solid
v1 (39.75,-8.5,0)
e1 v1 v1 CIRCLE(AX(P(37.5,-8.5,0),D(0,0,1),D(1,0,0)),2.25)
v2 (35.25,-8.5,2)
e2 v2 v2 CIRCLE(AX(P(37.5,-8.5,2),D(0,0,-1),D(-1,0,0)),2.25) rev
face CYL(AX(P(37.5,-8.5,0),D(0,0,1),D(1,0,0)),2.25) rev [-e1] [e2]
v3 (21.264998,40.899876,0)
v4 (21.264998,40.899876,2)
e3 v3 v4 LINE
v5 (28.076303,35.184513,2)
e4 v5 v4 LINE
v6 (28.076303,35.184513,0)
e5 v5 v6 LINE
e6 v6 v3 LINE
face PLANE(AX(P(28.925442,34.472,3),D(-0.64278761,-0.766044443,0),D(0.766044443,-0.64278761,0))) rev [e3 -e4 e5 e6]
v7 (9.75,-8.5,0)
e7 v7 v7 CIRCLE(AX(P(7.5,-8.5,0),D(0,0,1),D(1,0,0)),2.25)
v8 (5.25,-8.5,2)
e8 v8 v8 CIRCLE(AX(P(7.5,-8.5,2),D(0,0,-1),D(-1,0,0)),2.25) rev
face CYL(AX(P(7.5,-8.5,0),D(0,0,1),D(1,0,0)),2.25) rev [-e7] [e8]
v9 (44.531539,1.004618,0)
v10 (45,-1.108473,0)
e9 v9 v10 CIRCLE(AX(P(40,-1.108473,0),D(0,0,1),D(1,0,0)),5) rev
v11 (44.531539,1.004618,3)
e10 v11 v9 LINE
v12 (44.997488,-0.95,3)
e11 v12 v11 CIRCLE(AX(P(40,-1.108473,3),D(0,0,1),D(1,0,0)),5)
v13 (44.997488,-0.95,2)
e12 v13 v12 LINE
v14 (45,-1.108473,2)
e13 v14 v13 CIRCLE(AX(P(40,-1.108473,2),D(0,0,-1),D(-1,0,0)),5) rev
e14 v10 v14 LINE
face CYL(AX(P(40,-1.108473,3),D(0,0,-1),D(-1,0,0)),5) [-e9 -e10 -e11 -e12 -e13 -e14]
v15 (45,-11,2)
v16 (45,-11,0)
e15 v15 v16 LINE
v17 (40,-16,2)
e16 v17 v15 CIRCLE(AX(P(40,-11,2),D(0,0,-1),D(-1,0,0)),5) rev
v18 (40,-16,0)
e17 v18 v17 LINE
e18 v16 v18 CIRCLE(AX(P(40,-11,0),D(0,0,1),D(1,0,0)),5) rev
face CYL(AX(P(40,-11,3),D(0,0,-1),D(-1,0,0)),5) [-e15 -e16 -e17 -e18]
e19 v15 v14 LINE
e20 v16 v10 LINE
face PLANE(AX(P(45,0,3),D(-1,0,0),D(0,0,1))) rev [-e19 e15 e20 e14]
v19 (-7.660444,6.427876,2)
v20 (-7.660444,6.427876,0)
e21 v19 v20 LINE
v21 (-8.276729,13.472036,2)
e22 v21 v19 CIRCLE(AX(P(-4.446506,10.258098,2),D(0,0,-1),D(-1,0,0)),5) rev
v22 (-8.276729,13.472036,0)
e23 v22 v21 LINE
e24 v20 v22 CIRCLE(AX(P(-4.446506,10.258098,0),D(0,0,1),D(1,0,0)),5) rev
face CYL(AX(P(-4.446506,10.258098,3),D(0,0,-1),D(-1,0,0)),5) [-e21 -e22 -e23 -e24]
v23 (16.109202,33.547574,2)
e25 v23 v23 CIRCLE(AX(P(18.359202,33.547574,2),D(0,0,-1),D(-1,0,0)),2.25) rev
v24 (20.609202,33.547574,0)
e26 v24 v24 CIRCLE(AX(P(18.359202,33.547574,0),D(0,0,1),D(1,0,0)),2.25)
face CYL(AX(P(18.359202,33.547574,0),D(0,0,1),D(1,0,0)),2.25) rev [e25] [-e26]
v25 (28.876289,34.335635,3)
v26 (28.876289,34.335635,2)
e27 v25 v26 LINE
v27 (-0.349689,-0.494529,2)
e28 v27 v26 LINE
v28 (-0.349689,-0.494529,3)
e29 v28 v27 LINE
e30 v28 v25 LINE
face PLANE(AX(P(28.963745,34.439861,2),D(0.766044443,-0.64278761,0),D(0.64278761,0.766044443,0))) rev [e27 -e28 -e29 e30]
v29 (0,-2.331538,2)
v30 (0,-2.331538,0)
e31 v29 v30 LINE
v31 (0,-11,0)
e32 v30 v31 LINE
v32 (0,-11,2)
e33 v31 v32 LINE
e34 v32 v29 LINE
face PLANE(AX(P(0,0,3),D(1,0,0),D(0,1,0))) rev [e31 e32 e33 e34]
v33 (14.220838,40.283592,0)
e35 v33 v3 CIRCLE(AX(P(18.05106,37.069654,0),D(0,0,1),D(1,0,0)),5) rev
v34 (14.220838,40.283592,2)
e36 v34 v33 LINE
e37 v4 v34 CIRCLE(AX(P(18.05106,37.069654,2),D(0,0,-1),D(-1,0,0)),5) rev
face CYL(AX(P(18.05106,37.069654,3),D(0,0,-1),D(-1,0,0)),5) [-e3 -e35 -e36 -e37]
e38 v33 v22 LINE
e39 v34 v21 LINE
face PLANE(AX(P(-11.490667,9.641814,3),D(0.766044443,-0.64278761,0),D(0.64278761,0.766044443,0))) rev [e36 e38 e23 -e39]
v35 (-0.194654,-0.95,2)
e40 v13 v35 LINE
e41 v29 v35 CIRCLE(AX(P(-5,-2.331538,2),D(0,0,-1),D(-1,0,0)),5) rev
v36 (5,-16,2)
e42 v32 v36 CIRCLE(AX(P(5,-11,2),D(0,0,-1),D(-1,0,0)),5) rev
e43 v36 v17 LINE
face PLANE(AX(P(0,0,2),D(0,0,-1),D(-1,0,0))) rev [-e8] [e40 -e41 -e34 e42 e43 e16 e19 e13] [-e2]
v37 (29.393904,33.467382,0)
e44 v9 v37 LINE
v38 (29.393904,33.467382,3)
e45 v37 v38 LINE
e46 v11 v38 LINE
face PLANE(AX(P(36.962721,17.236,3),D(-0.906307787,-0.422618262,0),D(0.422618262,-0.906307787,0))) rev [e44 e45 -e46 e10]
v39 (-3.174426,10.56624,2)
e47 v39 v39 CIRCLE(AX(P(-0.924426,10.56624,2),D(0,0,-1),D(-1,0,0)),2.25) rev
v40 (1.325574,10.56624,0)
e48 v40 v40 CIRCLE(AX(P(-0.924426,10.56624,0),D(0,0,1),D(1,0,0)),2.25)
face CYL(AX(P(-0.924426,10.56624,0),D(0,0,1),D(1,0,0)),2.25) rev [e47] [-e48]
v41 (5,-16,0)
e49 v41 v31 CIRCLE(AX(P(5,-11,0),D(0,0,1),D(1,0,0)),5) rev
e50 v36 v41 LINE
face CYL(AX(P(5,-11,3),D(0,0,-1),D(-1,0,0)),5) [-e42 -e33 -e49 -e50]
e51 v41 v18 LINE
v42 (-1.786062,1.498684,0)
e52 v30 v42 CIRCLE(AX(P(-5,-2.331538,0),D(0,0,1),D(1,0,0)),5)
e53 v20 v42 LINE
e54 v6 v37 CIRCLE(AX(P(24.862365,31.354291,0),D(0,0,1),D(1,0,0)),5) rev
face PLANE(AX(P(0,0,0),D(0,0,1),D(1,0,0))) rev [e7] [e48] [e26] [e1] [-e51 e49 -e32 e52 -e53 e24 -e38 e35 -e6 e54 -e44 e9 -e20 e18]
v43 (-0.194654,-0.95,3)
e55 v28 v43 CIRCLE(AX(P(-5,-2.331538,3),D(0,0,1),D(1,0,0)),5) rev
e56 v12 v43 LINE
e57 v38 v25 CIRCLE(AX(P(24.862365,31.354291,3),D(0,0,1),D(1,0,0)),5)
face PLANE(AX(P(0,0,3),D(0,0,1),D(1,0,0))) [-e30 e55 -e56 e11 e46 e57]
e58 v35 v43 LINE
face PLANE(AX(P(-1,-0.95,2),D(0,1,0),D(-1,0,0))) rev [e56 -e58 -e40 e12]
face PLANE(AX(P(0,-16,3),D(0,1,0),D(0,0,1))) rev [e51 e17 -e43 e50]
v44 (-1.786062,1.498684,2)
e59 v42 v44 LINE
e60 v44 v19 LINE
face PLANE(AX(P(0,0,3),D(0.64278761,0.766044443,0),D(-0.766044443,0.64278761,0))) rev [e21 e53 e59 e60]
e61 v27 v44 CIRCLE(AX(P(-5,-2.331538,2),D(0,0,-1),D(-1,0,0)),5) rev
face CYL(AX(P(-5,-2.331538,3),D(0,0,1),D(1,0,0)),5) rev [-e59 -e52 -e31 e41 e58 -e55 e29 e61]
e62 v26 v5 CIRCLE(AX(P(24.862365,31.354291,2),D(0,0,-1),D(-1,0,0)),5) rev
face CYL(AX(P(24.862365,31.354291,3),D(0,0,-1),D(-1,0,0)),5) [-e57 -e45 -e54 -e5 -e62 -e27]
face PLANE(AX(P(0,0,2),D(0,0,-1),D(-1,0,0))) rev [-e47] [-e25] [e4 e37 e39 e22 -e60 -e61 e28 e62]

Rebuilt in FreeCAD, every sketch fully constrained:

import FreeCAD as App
import Part
import Sketcher
Q = App.Units.Quantity


def edges_at(feature, points):
    """Names of the edges that pass closest to the given points."""
    edges = feature.Shape.Edges
    near = lambda p: min(range(len(edges)), key=lambda i: edges[i].distToShape(Part.Vertex(*p))[0])
    return sorted({f"Edge{near(p) + 1}" for p in points})


def add_polygon(sketch, points):
    """Adds a closed chain of lines whose ends are joined by coincident constraints."""
    first, n = sketch.GeometryCount, len(points)
    for a, b in zip(points, points[1:] + points[:1]):
        sketch.addGeometry(Part.LineSegment(App.Vector(*a, 0), App.Vector(*b, 0)), False)
    for i in range(n):
        sketch.addConstraint(Sketcher.Constraint("Coincident", first + i, 2, first + (i + 1) % n, 1))

doc = App.newDocument("Part")
params = doc.addObject("Spreadsheet::Sheet", "Params")
for row, (alias, value) in enumerate([
    ("sketch1_width", "45 mm"),
    ("sketch1_height", "16 mm"),
    ("sketch1_length", "15 mm"),
    ("pad1_length", "3 mm"),
    ("sketch2_diameter", "4.5 mm"),
    ("pocket1_length", "3 mm"),
    ("fillet_radius", "5 mm"),
    ("sketch3_width", "46 mm"),
    ("sketch3_length", "46 mm"),
    ("sketch3_height", "15.05 mm"),
    ("sketch3_length2", "15.05 mm"),
    ("pocket2_length", "1 mm"),
], start=1):
    params.set(f"A{row}", alias)
    params.set(f"B{row}", "=" + value)
    params.setAlias(f"B{row}", alias)

body = doc.addObject("PartDesign::Body", "Body")

sketch1 = body.newObject("Sketcher::SketchObject", "Sketch")
sketch1.AttachmentSupport = (doc.getObject("XY_Plane"), [""])
sketch1.MapMode = "FlatFace"
add_polygon(sketch1, [(17.434776, 44.113814), (-11.490667, 9.641814), (0, 0), (0, -16), (45, -16), (45, 0), (28.925442, 34.472)])
sketch1.addConstraint([
    Sketcher.Constraint("Vertical", 2),
    Sketcher.Constraint("Horizontal", 3),
    Sketcher.Constraint("Vertical", 4),
    Sketcher.Constraint("Coincident", 1, 2, -1, 1),
    Sketcher.Constraint("PointOnObject", 4, 2, -1),
    Sketcher.Constraint("Perpendicular", 0, 1),
    Sketcher.Constraint("Parallel", 1, 6),
    Sketcher.Constraint("Equal", 1, 6),
    Sketcher.Constraint("DistanceX", 3, 1, 3, 2, Q("45 mm")),
    Sketcher.Constraint("DistanceY", 2, 2, 2, 1, Q("16 mm")),
    Sketcher.Constraint("Angle", 0, Q("-130 deg")),
    Sketcher.Constraint("Angle", 5, Q("115 deg")),
    Sketcher.Constraint("Distance", 1, Q("15 mm")),
])
sketch1.setExpression("Constraints[15]", "Params.sketch1_width")
sketch1.setExpression("Constraints[16]", "Params.sketch1_height")
sketch1.setExpression("Constraints[19]", "Params.sketch1_length")
pad1 = body.newObject("PartDesign::Pad", "Pad")
pad1.Profile = sketch1
pad1.setExpression("Length", "Params.pad1_length")

sketch2 = body.newObject("Sketcher::SketchObject", "Sketch001")
sketch2.AttachmentSupport = (doc.getObject("XY_Plane"), [""])
sketch2.MapMode = "FlatFace"
sketch2.AttachmentOffset = App.Placement(App.Vector(0, 0, 3), App.Rotation())
sketch2.addGeometry([
    Part.Circle(App.Vector(7.5, -8.5, 0), App.Vector(0, 0, 1), 2.25),
    Part.Circle(App.Vector(-0.924426, 10.56624, 0), App.Vector(0, 0, 1), 2.25),
    Part.Circle(App.Vector(18.359202, 33.547574, 0), App.Vector(0, 0, 1), 2.25),
    Part.Circle(App.Vector(37.5, -8.5, 0), App.Vector(0, 0, 1), 2.25),
], False)
sketch2.addConstraint([
    Sketcher.Constraint("Equal", 0, 1),
    Sketcher.Constraint("Equal", 1, 2),
    Sketcher.Constraint("Equal", 2, 3),
    Sketcher.Constraint("Horizontal", 0, 3, 3, 3),
    Sketcher.Constraint("Diameter", 0, Q("4.5 mm")),
    Sketcher.Constraint("DistanceX", 0, 3, 3, 3, Q("30 mm")),
    Sketcher.Constraint("DistanceX", -1, 1, 0, 3, Q("7.5 mm")),
    Sketcher.Constraint("DistanceY", 0, 3, -1, 1, Q("8.5 mm")),
    Sketcher.Constraint("DistanceY", -1, 1, 1, 3, Q("10.56624 mm")),
    Sketcher.Constraint("DistanceX", 1, 3, 2, 3, Q("19.283628 mm")),
    Sketcher.Constraint("DistanceX", 1, 3, -1, 1, Q("0.924426 mm")),
    Sketcher.Constraint("DistanceY", -1, 1, 2, 3, Q("33.547574 mm")),
])
sketch2.setExpression("Constraints[4]", "Params.sketch2_diameter")
pocket1 = body.newObject("PartDesign::Pocket", "Pocket")
pocket1.Profile = sketch2
pocket1.setExpression("Length", "Params.pocket1_length")
doc.recompute()

fillet = body.newObject("PartDesign::Fillet", "Fillet")
fillet.Base = (pocket1, edges_at(pocket1, [
    (17.435, 44.114, 1.5),
    (28.925, 34.472, 1.5),
    (45, 0, 1.5),
    (45, -16, 1.5),
    (0, -16, 1.5),
    (0, 0, 1.5),
    (-11.491, 9.642, 1.5),
]))
fillet.setExpression("Radius", "Params.fillet_radius")

sketch3 = body.newObject("Sketcher::SketchObject", "Sketch002")
sketch3.AttachmentSupport = (doc.getObject("XY_Plane"), [""])
sketch3.MapMode = "FlatFace"
sketch3.AttachmentOffset = App.Placement(App.Vector(0, 0, 3), App.Rotation())
add_polygon(sketch3, [(17.434776, 44.113814), (-12.133454, 8.87577), (-0.604485, -0.798184), (28.963745, 34.439861)])
add_polygon(sketch3, [(-1, -0.95), (-1, -16), (45, -16), (45, -0.95)])
sketch3.addConstraint([
    Sketcher.Constraint("Vertical", 4),
    Sketcher.Constraint("Horizontal", 5),
    Sketcher.Constraint("Vertical", 6),
    Sketcher.Constraint("Horizontal", 7),
    Sketcher.Constraint("Perpendicular", 0, 1),
    Sketcher.Constraint("Perpendicular", 1, 2),
    Sketcher.Constraint("Perpendicular", 2, 3),
    Sketcher.Constraint("DistanceX", 5, 1, 5, 2, Q("46 mm")),
    Sketcher.Constraint("Angle", 0, Q("-130 deg")),
    Sketcher.Constraint("Distance", 0, Q("46 mm")),
    Sketcher.Constraint("DistanceX", 4, 2, -1, 1, Q("1 mm")),
    Sketcher.Constraint("DistanceY", 4, 2, -1, 1, Q("16 mm")),
    Sketcher.Constraint("DistanceY", 4, 2, 4, 1, Q("15.05 mm")),
    Sketcher.Constraint("Distance", 1, Q("15.05 mm")),
    Sketcher.Constraint("DistanceY", -1, 1, 0, 2, Q("8.87577 mm")),
    Sketcher.Constraint("DistanceX", 0, 2, -1, 1, Q("12.133454 mm")),
])
sketch3.setExpression("Constraints[15]", "Params.sketch3_width")
sketch3.setExpression("Constraints[17]", "Params.sketch3_length")
sketch3.setExpression("Constraints[20]", "Params.sketch3_height")
sketch3.setExpression("Constraints[21]", "Params.sketch3_length2")
pocket2 = body.newObject("PartDesign::Pocket", "Pocket001")
pocket2.Profile = sketch3
pocket2.setExpression("Length", "Params.pocket2_length")

doc.recompute()
